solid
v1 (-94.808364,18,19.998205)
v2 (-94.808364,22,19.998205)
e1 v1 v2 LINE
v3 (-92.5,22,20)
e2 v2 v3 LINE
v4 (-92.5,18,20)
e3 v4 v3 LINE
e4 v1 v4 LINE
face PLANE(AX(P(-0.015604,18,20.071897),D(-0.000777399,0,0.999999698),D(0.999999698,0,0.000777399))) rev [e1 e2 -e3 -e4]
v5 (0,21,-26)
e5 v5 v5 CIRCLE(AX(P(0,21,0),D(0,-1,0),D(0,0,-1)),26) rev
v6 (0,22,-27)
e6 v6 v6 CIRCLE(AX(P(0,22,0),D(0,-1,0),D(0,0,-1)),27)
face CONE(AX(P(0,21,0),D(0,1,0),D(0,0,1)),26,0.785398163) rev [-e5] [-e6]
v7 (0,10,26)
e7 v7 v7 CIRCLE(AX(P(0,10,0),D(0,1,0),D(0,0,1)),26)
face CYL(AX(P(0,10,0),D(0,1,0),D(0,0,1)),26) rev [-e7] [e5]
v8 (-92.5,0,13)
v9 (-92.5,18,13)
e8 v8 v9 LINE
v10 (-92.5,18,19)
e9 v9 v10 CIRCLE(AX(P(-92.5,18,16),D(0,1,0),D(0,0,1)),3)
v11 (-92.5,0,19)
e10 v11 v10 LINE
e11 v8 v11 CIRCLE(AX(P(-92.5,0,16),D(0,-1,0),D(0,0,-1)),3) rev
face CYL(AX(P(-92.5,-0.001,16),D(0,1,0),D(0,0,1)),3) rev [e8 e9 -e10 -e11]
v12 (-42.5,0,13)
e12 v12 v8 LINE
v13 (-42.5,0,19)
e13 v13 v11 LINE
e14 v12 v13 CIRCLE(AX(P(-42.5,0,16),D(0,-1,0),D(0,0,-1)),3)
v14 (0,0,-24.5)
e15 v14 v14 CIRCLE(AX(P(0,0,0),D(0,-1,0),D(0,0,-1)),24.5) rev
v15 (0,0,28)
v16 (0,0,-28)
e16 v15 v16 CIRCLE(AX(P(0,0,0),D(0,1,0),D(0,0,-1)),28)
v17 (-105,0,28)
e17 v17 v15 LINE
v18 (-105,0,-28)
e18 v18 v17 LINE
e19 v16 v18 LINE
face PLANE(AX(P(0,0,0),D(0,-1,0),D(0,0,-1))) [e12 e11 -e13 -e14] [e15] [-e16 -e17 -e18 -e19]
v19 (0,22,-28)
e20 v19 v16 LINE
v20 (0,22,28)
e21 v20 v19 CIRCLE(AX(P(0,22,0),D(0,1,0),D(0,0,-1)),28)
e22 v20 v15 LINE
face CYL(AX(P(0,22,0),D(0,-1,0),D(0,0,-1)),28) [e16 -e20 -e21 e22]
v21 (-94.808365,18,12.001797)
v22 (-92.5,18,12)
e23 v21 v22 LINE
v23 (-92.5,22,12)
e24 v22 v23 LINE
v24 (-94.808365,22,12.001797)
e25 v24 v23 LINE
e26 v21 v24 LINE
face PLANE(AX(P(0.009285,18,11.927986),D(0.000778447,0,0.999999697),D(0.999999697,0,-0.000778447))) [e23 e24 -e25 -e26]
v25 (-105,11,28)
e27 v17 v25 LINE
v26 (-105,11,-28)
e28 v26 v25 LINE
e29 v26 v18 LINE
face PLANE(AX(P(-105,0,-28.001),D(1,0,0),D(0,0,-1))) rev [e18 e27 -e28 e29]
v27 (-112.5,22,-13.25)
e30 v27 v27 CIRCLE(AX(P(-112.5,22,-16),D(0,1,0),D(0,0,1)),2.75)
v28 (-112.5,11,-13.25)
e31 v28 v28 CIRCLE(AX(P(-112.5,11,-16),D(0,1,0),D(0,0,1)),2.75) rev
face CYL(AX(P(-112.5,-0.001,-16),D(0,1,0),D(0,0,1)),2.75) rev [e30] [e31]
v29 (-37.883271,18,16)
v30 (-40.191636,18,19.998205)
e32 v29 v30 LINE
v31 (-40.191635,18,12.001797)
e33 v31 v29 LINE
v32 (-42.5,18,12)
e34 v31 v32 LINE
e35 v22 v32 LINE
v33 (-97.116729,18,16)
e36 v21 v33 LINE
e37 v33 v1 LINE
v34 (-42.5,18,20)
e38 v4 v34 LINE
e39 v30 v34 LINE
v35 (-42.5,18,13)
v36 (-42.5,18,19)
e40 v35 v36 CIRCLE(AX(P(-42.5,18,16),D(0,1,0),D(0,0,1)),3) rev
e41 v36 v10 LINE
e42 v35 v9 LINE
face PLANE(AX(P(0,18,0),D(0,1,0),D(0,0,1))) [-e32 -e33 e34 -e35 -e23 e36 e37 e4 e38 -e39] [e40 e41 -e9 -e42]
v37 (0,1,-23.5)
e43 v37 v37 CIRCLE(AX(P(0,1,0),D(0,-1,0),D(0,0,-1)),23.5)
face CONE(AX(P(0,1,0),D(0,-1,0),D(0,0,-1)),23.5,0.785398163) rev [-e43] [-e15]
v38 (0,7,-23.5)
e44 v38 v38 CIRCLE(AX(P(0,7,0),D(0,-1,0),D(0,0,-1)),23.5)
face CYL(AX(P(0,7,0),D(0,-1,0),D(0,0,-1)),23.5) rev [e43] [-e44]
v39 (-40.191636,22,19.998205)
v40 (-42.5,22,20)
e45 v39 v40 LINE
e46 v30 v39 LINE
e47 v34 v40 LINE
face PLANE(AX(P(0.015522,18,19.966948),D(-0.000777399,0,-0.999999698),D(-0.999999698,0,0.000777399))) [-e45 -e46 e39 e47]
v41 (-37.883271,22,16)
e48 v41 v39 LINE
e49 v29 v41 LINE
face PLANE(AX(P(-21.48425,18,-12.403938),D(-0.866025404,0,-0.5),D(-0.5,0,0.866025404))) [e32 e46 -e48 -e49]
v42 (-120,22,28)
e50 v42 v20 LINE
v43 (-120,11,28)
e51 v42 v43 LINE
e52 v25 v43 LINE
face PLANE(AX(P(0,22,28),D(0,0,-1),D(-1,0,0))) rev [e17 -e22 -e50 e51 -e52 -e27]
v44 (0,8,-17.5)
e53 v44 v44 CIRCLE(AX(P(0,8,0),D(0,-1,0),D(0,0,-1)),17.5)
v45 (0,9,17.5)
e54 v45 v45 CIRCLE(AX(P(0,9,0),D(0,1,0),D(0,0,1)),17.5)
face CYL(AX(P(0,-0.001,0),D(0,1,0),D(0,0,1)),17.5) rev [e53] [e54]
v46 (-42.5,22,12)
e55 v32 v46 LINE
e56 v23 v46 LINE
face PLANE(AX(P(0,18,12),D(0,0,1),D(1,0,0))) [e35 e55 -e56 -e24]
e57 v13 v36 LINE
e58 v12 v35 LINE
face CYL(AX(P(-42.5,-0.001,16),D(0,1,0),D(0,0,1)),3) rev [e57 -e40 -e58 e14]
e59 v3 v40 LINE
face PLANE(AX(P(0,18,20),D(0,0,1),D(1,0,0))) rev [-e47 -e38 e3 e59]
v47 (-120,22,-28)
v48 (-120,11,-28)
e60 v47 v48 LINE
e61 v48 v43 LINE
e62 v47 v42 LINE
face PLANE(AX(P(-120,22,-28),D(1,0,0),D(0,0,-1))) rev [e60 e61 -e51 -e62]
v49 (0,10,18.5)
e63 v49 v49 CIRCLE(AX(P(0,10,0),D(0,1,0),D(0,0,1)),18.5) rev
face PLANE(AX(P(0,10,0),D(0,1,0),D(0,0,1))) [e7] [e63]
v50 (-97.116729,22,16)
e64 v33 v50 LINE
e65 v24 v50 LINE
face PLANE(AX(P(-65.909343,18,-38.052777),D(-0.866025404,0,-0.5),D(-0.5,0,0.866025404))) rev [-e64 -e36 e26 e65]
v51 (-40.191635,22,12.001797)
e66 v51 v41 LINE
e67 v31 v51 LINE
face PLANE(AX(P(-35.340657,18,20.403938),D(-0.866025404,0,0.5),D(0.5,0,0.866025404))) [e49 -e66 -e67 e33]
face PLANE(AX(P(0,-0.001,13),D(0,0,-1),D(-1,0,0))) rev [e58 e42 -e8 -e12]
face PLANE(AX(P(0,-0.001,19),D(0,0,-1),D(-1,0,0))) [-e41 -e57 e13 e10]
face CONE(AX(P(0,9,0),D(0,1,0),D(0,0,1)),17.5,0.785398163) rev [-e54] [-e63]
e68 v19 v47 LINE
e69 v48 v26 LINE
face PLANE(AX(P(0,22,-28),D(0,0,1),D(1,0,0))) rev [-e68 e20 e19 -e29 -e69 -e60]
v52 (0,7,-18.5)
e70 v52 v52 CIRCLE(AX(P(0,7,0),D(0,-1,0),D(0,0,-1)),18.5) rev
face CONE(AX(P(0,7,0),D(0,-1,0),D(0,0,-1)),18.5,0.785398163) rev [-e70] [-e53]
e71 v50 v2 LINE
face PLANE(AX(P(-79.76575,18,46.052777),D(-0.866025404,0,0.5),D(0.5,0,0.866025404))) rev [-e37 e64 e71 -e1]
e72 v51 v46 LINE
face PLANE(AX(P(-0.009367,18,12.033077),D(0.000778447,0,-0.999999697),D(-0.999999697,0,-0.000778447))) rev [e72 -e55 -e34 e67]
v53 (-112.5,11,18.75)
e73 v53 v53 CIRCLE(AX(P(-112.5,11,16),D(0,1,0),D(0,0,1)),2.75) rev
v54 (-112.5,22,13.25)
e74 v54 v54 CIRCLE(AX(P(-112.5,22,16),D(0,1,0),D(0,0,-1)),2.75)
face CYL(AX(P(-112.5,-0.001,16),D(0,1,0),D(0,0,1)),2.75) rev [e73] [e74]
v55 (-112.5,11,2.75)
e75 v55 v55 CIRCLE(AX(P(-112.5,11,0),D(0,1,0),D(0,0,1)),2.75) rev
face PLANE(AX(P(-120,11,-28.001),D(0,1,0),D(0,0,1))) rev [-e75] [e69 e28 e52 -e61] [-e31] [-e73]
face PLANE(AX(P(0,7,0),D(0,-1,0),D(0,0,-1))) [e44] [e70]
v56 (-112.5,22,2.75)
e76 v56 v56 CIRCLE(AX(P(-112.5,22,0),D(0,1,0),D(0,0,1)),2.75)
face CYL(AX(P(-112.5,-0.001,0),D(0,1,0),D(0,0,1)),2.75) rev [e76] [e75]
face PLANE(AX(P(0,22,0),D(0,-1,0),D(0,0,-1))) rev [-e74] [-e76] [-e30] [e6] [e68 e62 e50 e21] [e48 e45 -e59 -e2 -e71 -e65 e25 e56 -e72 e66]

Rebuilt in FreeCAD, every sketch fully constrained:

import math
import FreeCAD as App
import Part
import Sketcher
Q = App.Units.Quantity


def edges_at(feature, points):
    """Names of the edges that pass closest to the given points."""
    edges = feature.Shape.Edges
    near = lambda p: min(range(len(edges)), key=lambda i: edges[i].distToShape(Part.Vertex(*p))[0])
    return sorted({f"Edge{near(p) + 1}" for p in points})

doc = App.newDocument("Part")
body = doc.addObject("PartDesign::Body", "Body")

# Sketch on XZ plane
sketch1 = body.newObject("Sketcher::SketchObject", "Sketch")
sketch1.AttachmentSupport = (doc.getObject("XZ_Plane"), [""])
sketch1.MapMode = "FlatFace"
sketch1.addGeometry(Part.LineSegment(App.Vector(0, -28, 0), App.Vector(-120, -28, 0)), False)
sketch1.addGeometry(Part.LineSegment(App.Vector(-120, -28, 0), App.Vector(-120, 28, 0)), False)
sketch1.addGeometry(Part.LineSegment(App.Vector(-120, 28, 0), App.Vector(0, 28, 0)), False)
sketch1.addGeometry(Part.ArcOfCircle(Part.Circle(App.Vector(0, 0, 0), App.Vector(0, 0, 1), 28), math.radians(-90), math.radians(90)), False)
sketch1.addConstraint(Sketcher.Constraint("Coincident", 0, 2, 1, 1))
sketch1.addConstraint(Sketcher.Constraint("Coincident", 1, 2, 2, 1))
sketch1.addConstraint(Sketcher.Constraint("Tangent", 2, 2, 3, 2))
sketch1.addConstraint(Sketcher.Constraint("Tangent", 3, 1, 0, 1))
sketch1.addConstraint(Sketcher.Constraint("Horizontal", 0))
sketch1.addConstraint(Sketcher.Constraint("Vertical", 1))
sketch1.addConstraint(Sketcher.Constraint("Horizontal", 2))
sketch1.addConstraint(Sketcher.Constraint("Coincident", 3, 3, -1, 1))
sketch1.addConstraint(Sketcher.Constraint("Radius", 3, 28.0))
sketch1.addConstraint(Sketcher.Constraint("DistanceX", 0, 2, 0, 1, 120.0))
pad1 = body.newObject("PartDesign::Pad", "Pad")
pad1.Profile = sketch1
pad1.Length = 22
pad1.Reversed = True

# Sketch on XY plane
sketch2 = body.newObject("Sketcher::SketchObject", "Sketch001")
sketch2.AttachmentSupport = (doc.getObject("XY_Plane"), [""])
sketch2.MapMode = "FlatFace"
sketch2.AttachmentOffset = App.Placement(App.Vector(0, 0, 28), App.Rotation())
sketch2.addGeometry(Part.LineSegment(App.Vector(-120, 11, 0), App.Vector(-120, 0, 0)), False)
sketch2.addGeometry(Part.LineSegment(App.Vector(-120, 0, 0), App.Vector(-105, 0, 0)), False)
sketch2.addGeometry(Part.LineSegment(App.Vector(-105, 0, 0), App.Vector(-105, 11, 0)), False)
sketch2.addGeometry(Part.LineSegment(App.Vector(-105, 11, 0), App.Vector(-120, 11, 0)), False)
sketch2.addConstraint(Sketcher.Constraint("Coincident", 0, 2, 1, 1))
sketch2.addConstraint(Sketcher.Constraint("Coincident", 1, 2, 2, 1))
sketch2.addConstraint(Sketcher.Constraint("Coincident", 2, 2, 3, 1))
sketch2.addConstraint(Sketcher.Constraint("Coincident", 3, 2, 0, 1))
sketch2.addConstraint(Sketcher.Constraint("Vertical", 0))
sketch2.addConstraint(Sketcher.Constraint("Horizontal", 1))
sketch2.addConstraint(Sketcher.Constraint("Vertical", 2))
sketch2.addConstraint(Sketcher.Constraint("Horizontal", 3))
sketch2.addConstraint(Sketcher.Constraint("PointOnObject", 0, 2, -1))
sketch2.addConstraint(Sketcher.Constraint("DistanceX", 1, 1, 1, 2, 15.0))
sketch2.addConstraint(Sketcher.Constraint("DistanceY", 0, 2, 0, 1, 11.0))
sketch2.addConstraint(Sketcher.Constraint("DistanceX", 0, 2, -1, 1, 120.0))
pocket1 = body.newObject("PartDesign::Pocket", "Pocket")
pocket1.Profile = sketch2
pocket1.Type = "UpToFirst"

# Sketch on XZ plane
sketch3 = body.newObject("Sketcher::SketchObject", "Sketch002")
sketch3.AttachmentSupport = (doc.getObject("XZ_Plane"), [""])
sketch3.MapMode = "FlatFace"
sketch3.AttachmentOffset = App.Placement(App.Vector(0, 0, -22), App.Rotation())
sketch3.addGeometry(Part.Circle(App.Vector(0, 0, 0), App.Vector(0, 0, 1), 26), False)
sketch3.addConstraint(Sketcher.Constraint("Coincident", 0, 3, -1, 1))
sketch3.addConstraint(Sketcher.Constraint("Diameter", 0, 52.0))
pocket2 = body.newObject("PartDesign::Pocket", "Pocket001")
pocket2.Profile = sketch3
pocket2.Length = 12
pocket2.Reversed = True

# Sketch on XZ plane
sketch4 = body.newObject("Sketcher::SketchObject", "Sketch003")
sketch4.AttachmentSupport = (doc.getObject("XZ_Plane"), [""])
sketch4.MapMode = "FlatFace"
sketch4.AttachmentOffset = App.Placement(App.Vector(0, 0, -10), App.Rotation())
sketch4.addGeometry(Part.Circle(App.Vector(0, 0, 0), App.Vector(0, 0, 1), 17.5), False)
sketch4.addConstraint(Sketcher.Constraint("Coincident", 0, 3, -1, 1))
sketch4.addConstraint(Sketcher.Constraint("Diameter", 0, 35.0))
pocket3 = body.newObject("PartDesign::Pocket", "Pocket002")
pocket3.Profile = sketch4
pocket3.Type = "UpToFirst"
pocket3.Reversed = True

# Sketch on XZ plane
sketch5 = body.newObject("Sketcher::SketchObject", "Sketch004")
sketch5.AttachmentSupport = (doc.getObject("XZ_Plane"), [""])
sketch5.MapMode = "FlatFace"
sketch5.addGeometry(Part.Circle(App.Vector(0, 0, 0), App.Vector(0, 0, 1), 23.5), False)
sketch5.addConstraint(Sketcher.Constraint("Coincident", 0, 3, -1, 1))
sketch5.addConstraint(Sketcher.Constraint("Diameter", 0, 47.0))
pocket4 = body.newObject("PartDesign::Pocket", "Pocket003")
pocket4.Profile = sketch5
pocket4.Length = 7
doc.recompute()

chamfer = body.newObject("PartDesign::Chamfer", "Chamfer")
chamfer.Base = (pocket4, edges_at(pocket4, [
    (0, 22, -26),
    (0, 10, -17.5),
    (0, 0, 23.5),
    (0, 7, -17.5),
]))
chamfer.Size = 1

# Sketch on XZ plane
sketch6 = body.newObject("Sketcher::SketchObject", "Sketch005")
sketch6.AttachmentSupport = (doc.getObject("XZ_Plane"), [""])
sketch6.MapMode = "FlatFace"
sketch6.AttachmentOffset = App.Placement(App.Vector(0, 0, -22), App.Rotation())
sketch6.addGeometry(Part.Circle(App.Vector(-112.5, 0, 0), App.Vector(0, 0, 1), 2.75), False)
sketch6.addConstraint(Sketcher.Constraint("PointOnObject", 0, 3, -1))
sketch6.addConstraint(Sketcher.Constraint("Diameter", 0, 5.5))
sketch6.addConstraint(Sketcher.Constraint("DistanceX", 0, 3, -1, 1, 112.5))
pocket5 = body.newObject("PartDesign::Pocket", "Pocket004")
pocket5.Profile = sketch6
pocket5.Type = "UpToFirst"
pocket5.Reversed = True

# Sketch on XZ plane
sketch7 = body.newObject("Sketcher::SketchObject", "Sketch006")
sketch7.AttachmentSupport = (doc.getObject("XZ_Plane"), [""])
sketch7.MapMode = "FlatFace"
sketch7.AttachmentOffset = App.Placement(App.Vector(0, 0, -22), App.Rotation())
sketch7.addGeometry(Part.Circle(App.Vector(-112.5, -16, 0), App.Vector(0, 0, 1), 2.75), False)
sketch7.addConstraint(Sketcher.Constraint("Diameter", 0, 5.5))
sketch7.addConstraint(Sketcher.Constraint("DistanceY", 0, 3, -1, 1, 16.0))
sketch7.addConstraint(Sketcher.Constraint("DistanceX", 0, 3, -1, 1, 112.5))
pocket6 = body.newObject("PartDesign::Pocket", "Pocket005")
pocket6.Profile = sketch7
pocket6.Type = "UpToFirst"
pocket6.Reversed = True

# Sketch on XZ plane
sketch8 = body.newObject("Sketcher::SketchObject", "Sketch007")
sketch8.AttachmentSupport = (doc.getObject("XZ_Plane"), [""])
sketch8.MapMode = "FlatFace"
sketch8.AttachmentOffset = App.Placement(App.Vector(0, 0, -22), App.Rotation())
sketch8.addGeometry(Part.Circle(App.Vector(-112.5, 16, 0), App.Vector(0, 0, 1), 2.75), False)
sketch8.addConstraint(Sketcher.Constraint("Diameter", 0, 5.5))
sketch8.addConstraint(Sketcher.Constraint("DistanceY", -1, 1, 0, 3, 16.0))
sketch8.addConstraint(Sketcher.Constraint("DistanceX", 0, 3, -1, 1, 112.5))
pocket7 = body.newObject("PartDesign::Pocket", "Pocket006")
pocket7.Profile = sketch8
pocket7.Type = "UpToFirst"
pocket7.Reversed = True

# Sketch on XZ plane
sketch9 = body.newObject("Sketcher::SketchObject", "Sketch008")
sketch9.AttachmentSupport = (doc.getObject("XZ_Plane"), [""])
sketch9.MapMode = "FlatFace"
sketch9.AttachmentOffset = App.Placement(App.Vector(0, 0, -22), App.Rotation())
sketch9.addGeometry(Part.ArcOfCircle(Part.Circle(App.Vector(-42.5, 16, 0), App.Vector(0, 0, 1), 3), math.radians(-90), math.radians(90)), False)
sketch9.addGeometry(Part.LineSegment(App.Vector(-42.5, 13, 0), App.Vector(-92.5, 13, 0)), False)
sketch9.addGeometry(Part.ArcOfCircle(Part.Circle(App.Vector(-92.5, 16, 0), App.Vector(0, 0, 1), 3), math.radians(90), math.radians(270)), False)
sketch9.addGeometry(Part.LineSegment(App.Vector(-92.5, 19, 0), App.Vector(-42.5, 19, 0)), False)
sketch9.addConstraint(Sketcher.Constraint("Tangent", 0, 1, 1, 1))
sketch9.addConstraint(Sketcher.Constraint("Tangent", 1, 2, 2, 2))
sketch9.addConstraint(Sketcher.Constraint("Tangent", 2, 1, 3, 1))
sketch9.addConstraint(Sketcher.Constraint("Tangent", 3, 2, 0, 2))
sketch9.addConstraint(Sketcher.Constraint("Horizontal", 1))
sketch9.addConstraint(Sketcher.Constraint("Horizontal", 3))
sketch9.addConstraint(Sketcher.Constraint("Radius", 0, 3.0))
sketch9.addConstraint(Sketcher.Constraint("DistanceX", 1, 2, 1, 1, 50.0))
sketch9.addConstraint(Sketcher.Constraint("DistanceY", -1, 1, 0, 3, 16.0))
sketch9.addConstraint(Sketcher.Constraint("DistanceX", 0, 3, -1, 1, 42.5))
pocket8 = body.newObject("PartDesign::Pocket", "Pocket007")
pocket8.Profile = sketch9
pocket8.Type = "UpToFirst"
pocket8.Reversed = True

# Sketch on XZ plane
sketch10 = body.newObject("Sketcher::SketchObject", "Sketch009")
sketch10.AttachmentSupport = (doc.getObject("XZ_Plane"), [""])
sketch10.MapMode = "FlatFace"
sketch10.AttachmentOffset = App.Placement(App.Vector(0, 0, -22), App.Rotation())
sketch10.addGeometry(Part.LineSegment(App.Vector(-42.5, 12, 0), App.Vector(-92.5, 12, 0)), False)
sketch10.addGeometry(Part.LineSegment(App.Vector(-92.5, 12, 0), App.Vector(-94.808365, 12.001797, 0)), False)
sketch10.addGeometry(Part.LineSegment(App.Vector(-94.808365, 12.001797, 0), App.Vector(-97.116729, 16, 0)), False)
sketch10.addGeometry(Part.LineSegment(App.Vector(-97.116729, 16, 0), App.Vector(-94.808364, 19.998205, 0)), False)
sketch10.addGeometry(Part.LineSegment(App.Vector(-94.808364, 19.998205, 0), App.Vector(-92.5, 20, 0)), False)
sketch10.addGeometry(Part.LineSegment(App.Vector(-92.5, 20, 0), App.Vector(-42.5, 20, 0)), False)
sketch10.addGeometry(Part.LineSegment(App.Vector(-42.5, 20, 0), App.Vector(-40.191636, 19.998205, 0)), False)
sketch10.addGeometry(Part.LineSegment(App.Vector(-40.191636, 19.998205, 0), App.Vector(-37.883271, 16, 0)), False)
sketch10.addGeometry(Part.LineSegment(App.Vector(-37.883271, 16, 0), App.Vector(-40.191635, 12.001797, 0)), False)
sketch10.addGeometry(Part.LineSegment(App.Vector(-40.191635, 12.001797, 0), App.Vector(-42.5, 12, 0)), False)
sketch10.addConstraint(Sketcher.Constraint("Coincident", 0, 2, 1, 1))
sketch10.addConstraint(Sketcher.Constraint("Coincident", 1, 2, 2, 1))
sketch10.addConstraint(Sketcher.Constraint("Coincident", 2, 2, 3, 1))
sketch10.addConstraint(Sketcher.Constraint("Coincident", 3, 2, 4, 1))
sketch10.addConstraint(Sketcher.Constraint("Coincident", 4, 2, 5, 1))
sketch10.addConstraint(Sketcher.Constraint("Coincident", 5, 2, 6, 1))
sketch10.addConstraint(Sketcher.Constraint("Coincident", 6, 2, 7, 1))
sketch10.addConstraint(Sketcher.Constraint("Coincident", 7, 2, 8, 1))
sketch10.addConstraint(Sketcher.Constraint("Coincident", 8, 2, 9, 1))
sketch10.addConstraint(Sketcher.Constraint("Coincident", 9, 2, 0, 1))
sketch10.addConstraint(Sketcher.Constraint("Horizontal", 0))
sketch10.addConstraint(Sketcher.Constraint("Horizontal", 5))
sketch10.addConstraint(Sketcher.Constraint("Parallel", 1, 6))
sketch10.addConstraint(Sketcher.Constraint("Parallel", 2, 7))
sketch10.addConstraint(Sketcher.Constraint("Parallel", 3, 8))
sketch10.addConstraint(Sketcher.Constraint("Parallel", 4, 9))
sketch10.addConstraint(Sketcher.Constraint("Horizontal", 3, 2, 6, 2))
sketch10.addConstraint(Sketcher.Constraint("Horizontal", 2, 2, 7, 2))
sketch10.addConstraint(Sketcher.Constraint("Vertical", 1, 2, 3, 2))
sketch10.addConstraint(Sketcher.Constraint("Vertical", 0, 2, 4, 2))
sketch10.addConstraint(Sketcher.Constraint("Vertical", 6, 2, 8, 2))
sketch10.addConstraint(Sketcher.Constraint("Vertical", 5, 2, 9, 2))
sketch10.addConstraint(Sketcher.Constraint("Equal", 4, 6))
sketch10.addConstraint(Sketcher.Constraint("DistanceX", 0, 2, 0, 1, 50.0))
sketch10.addConstraint(Sketcher.Constraint("Angle", 2, Q("120 deg")))
sketch10.addConstraint(Sketcher.Constraint("DistanceY", -1, 1, 0, 2, 12.0))
sketch10.addConstraint(Sketcher.Constraint("DistanceY", -1, 1, 2, 2, 16.0))
sketch10.addConstraint(Sketcher.Constraint("DistanceX", 0, 2, -1, 1, 92.5))
sketch10.addConstraint(Sketcher.Constraint("Distance", 3, 4.61673))
sketch10.addConstraint(Sketcher.Constraint("DistanceX", 2, 2, -1, 1, 97.116729))
pocket9 = body.newObject("PartDesign::Pocket", "Pocket008")
pocket9.Profile = sketch10
pocket9.Length = 4
pocket9.Reversed = True

doc.recompute()
